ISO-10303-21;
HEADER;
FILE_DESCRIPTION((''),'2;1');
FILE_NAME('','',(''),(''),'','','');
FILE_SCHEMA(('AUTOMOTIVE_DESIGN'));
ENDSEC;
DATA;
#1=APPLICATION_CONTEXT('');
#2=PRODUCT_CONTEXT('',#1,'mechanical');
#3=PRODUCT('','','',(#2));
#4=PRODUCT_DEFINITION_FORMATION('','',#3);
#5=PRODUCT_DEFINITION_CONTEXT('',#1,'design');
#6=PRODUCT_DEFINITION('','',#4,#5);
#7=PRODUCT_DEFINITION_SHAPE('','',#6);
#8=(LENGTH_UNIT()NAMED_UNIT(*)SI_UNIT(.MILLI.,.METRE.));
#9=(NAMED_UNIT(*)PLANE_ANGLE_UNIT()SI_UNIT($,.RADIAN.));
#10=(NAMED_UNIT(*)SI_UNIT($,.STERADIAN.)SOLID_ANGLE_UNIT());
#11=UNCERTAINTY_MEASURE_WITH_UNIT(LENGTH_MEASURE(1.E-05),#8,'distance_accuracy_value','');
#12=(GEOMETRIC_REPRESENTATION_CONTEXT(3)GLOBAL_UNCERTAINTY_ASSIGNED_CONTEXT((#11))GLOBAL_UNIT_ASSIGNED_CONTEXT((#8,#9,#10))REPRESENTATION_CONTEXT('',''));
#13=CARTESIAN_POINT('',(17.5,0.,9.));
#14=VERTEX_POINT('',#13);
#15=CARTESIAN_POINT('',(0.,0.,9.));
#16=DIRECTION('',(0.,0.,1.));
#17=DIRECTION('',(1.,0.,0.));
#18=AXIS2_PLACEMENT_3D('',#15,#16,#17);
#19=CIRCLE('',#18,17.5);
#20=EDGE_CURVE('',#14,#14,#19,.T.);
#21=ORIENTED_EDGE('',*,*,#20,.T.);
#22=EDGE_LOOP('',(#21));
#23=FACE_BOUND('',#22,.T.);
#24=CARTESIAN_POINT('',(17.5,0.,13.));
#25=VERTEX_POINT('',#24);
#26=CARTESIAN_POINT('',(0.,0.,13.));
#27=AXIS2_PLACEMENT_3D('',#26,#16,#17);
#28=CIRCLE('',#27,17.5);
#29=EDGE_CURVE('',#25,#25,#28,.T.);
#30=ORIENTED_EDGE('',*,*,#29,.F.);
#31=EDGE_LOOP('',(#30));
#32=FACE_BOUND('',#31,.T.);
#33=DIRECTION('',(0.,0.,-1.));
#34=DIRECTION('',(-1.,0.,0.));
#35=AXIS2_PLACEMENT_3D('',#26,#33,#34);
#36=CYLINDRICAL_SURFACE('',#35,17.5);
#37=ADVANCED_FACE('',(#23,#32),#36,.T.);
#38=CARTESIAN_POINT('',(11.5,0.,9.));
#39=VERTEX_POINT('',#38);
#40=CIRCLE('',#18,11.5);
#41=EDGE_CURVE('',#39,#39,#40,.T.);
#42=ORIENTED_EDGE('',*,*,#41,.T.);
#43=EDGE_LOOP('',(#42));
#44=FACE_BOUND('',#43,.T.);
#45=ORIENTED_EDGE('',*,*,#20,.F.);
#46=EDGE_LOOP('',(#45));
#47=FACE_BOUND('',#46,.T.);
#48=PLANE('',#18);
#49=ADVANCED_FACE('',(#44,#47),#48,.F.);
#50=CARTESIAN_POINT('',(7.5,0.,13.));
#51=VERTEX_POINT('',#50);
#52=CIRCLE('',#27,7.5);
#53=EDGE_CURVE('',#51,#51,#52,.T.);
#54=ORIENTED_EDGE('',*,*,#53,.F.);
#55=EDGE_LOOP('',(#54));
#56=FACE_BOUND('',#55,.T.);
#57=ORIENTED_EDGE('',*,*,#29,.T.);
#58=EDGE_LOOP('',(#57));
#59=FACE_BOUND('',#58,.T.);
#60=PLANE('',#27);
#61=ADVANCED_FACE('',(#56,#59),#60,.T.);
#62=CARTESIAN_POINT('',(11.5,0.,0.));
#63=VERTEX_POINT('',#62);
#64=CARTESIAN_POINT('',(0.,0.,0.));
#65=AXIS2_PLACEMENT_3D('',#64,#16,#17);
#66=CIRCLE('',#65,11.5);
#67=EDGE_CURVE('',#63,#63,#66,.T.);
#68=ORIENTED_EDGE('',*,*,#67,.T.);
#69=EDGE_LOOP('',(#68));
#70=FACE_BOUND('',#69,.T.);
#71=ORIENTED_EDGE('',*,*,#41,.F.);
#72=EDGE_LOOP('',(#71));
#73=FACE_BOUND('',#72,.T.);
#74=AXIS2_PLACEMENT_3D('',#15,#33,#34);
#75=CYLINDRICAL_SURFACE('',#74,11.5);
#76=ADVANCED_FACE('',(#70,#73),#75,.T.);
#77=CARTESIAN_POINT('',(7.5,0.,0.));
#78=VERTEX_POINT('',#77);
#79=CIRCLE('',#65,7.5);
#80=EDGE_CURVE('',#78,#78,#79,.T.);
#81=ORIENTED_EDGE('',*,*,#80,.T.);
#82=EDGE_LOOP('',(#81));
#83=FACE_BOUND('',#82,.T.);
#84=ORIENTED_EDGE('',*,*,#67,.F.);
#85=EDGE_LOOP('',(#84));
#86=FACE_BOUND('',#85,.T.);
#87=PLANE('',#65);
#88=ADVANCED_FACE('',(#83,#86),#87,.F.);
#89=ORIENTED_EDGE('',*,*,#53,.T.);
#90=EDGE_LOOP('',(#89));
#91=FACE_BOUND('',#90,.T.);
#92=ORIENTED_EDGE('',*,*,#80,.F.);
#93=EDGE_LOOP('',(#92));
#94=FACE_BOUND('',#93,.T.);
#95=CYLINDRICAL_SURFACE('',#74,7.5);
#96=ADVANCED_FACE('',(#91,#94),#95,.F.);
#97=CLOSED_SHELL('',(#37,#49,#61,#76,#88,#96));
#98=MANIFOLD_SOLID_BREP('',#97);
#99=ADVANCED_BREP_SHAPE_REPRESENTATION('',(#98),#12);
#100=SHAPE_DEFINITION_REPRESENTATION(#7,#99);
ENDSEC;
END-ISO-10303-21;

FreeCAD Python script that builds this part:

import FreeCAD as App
import Part
import Sketcher

V = App.Vector

doc = App.newDocument("Part")
body = doc.addObject("PartDesign::Body", "Body")

# Sketch on XY plane
sketch1 = body.newObject("Sketcher::SketchObject", "Sketch")
sketch1.AttachmentSupport = (doc.getObject("XY_Plane"), [""])
sketch1.MapMode = "FlatFace"
sketch1.addGeometry(Part.Circle(V(0, 0, 0), V(0, 0, 1), 12), False)
sketch1.addGeometry(Part.Circle(V(0, 0, 0), V(0, 0, 1), 8), False)
sketch1.addConstraint(Sketcher.Constraint("Coincident", 0, 3, -1, 1))
sketch1.addConstraint(Sketcher.Constraint("Coincident", 1, 3, -1, 1))
sketch1.addConstraint(Sketcher.Constraint("Diameter", 0, 23.0))
sketch1.addConstraint(Sketcher.Constraint("Diameter", 1, 15.0))
pad1 = body.newObject("PartDesign::Pad", "Pad")
pad1.Profile = sketch1
pad1.Length = 9

# Sketch on XY plane
sketch2 = body.newObject("Sketcher::SketchObject", "Sketch001")
sketch2.AttachmentSupport = (doc.getObject("XY_Plane"), [""])
sketch2.MapMode = "FlatFace"
sketch2.AttachmentOffset = App.Placement(V(0, 0, 9), App.Rotation())
sketch2.addGeometry(Part.Circle(V(0, 0, 0), V(0, 0, 1), 18), False)
sketch2.addGeometry(Part.Circle(V(0, 0, 0), V(0, 0, 1), 8), False)
sketch2.addConstraint(Sketcher.Constraint("Coincident", 0, 3, -1, 1))
sketch2.addConstraint(Sketcher.Constraint("Coincident", 1, 3, -1, 1))
sketch2.addConstraint(Sketcher.Constraint("Diameter", 0, 35.0))
sketch2.addConstraint(Sketcher.Constraint("Diameter", 1, 15.0))
pad2 = body.newObject("PartDesign::Pad", "Pad001")
pad2.Profile = sketch2
pad2.Length = 4

doc.recompute()
